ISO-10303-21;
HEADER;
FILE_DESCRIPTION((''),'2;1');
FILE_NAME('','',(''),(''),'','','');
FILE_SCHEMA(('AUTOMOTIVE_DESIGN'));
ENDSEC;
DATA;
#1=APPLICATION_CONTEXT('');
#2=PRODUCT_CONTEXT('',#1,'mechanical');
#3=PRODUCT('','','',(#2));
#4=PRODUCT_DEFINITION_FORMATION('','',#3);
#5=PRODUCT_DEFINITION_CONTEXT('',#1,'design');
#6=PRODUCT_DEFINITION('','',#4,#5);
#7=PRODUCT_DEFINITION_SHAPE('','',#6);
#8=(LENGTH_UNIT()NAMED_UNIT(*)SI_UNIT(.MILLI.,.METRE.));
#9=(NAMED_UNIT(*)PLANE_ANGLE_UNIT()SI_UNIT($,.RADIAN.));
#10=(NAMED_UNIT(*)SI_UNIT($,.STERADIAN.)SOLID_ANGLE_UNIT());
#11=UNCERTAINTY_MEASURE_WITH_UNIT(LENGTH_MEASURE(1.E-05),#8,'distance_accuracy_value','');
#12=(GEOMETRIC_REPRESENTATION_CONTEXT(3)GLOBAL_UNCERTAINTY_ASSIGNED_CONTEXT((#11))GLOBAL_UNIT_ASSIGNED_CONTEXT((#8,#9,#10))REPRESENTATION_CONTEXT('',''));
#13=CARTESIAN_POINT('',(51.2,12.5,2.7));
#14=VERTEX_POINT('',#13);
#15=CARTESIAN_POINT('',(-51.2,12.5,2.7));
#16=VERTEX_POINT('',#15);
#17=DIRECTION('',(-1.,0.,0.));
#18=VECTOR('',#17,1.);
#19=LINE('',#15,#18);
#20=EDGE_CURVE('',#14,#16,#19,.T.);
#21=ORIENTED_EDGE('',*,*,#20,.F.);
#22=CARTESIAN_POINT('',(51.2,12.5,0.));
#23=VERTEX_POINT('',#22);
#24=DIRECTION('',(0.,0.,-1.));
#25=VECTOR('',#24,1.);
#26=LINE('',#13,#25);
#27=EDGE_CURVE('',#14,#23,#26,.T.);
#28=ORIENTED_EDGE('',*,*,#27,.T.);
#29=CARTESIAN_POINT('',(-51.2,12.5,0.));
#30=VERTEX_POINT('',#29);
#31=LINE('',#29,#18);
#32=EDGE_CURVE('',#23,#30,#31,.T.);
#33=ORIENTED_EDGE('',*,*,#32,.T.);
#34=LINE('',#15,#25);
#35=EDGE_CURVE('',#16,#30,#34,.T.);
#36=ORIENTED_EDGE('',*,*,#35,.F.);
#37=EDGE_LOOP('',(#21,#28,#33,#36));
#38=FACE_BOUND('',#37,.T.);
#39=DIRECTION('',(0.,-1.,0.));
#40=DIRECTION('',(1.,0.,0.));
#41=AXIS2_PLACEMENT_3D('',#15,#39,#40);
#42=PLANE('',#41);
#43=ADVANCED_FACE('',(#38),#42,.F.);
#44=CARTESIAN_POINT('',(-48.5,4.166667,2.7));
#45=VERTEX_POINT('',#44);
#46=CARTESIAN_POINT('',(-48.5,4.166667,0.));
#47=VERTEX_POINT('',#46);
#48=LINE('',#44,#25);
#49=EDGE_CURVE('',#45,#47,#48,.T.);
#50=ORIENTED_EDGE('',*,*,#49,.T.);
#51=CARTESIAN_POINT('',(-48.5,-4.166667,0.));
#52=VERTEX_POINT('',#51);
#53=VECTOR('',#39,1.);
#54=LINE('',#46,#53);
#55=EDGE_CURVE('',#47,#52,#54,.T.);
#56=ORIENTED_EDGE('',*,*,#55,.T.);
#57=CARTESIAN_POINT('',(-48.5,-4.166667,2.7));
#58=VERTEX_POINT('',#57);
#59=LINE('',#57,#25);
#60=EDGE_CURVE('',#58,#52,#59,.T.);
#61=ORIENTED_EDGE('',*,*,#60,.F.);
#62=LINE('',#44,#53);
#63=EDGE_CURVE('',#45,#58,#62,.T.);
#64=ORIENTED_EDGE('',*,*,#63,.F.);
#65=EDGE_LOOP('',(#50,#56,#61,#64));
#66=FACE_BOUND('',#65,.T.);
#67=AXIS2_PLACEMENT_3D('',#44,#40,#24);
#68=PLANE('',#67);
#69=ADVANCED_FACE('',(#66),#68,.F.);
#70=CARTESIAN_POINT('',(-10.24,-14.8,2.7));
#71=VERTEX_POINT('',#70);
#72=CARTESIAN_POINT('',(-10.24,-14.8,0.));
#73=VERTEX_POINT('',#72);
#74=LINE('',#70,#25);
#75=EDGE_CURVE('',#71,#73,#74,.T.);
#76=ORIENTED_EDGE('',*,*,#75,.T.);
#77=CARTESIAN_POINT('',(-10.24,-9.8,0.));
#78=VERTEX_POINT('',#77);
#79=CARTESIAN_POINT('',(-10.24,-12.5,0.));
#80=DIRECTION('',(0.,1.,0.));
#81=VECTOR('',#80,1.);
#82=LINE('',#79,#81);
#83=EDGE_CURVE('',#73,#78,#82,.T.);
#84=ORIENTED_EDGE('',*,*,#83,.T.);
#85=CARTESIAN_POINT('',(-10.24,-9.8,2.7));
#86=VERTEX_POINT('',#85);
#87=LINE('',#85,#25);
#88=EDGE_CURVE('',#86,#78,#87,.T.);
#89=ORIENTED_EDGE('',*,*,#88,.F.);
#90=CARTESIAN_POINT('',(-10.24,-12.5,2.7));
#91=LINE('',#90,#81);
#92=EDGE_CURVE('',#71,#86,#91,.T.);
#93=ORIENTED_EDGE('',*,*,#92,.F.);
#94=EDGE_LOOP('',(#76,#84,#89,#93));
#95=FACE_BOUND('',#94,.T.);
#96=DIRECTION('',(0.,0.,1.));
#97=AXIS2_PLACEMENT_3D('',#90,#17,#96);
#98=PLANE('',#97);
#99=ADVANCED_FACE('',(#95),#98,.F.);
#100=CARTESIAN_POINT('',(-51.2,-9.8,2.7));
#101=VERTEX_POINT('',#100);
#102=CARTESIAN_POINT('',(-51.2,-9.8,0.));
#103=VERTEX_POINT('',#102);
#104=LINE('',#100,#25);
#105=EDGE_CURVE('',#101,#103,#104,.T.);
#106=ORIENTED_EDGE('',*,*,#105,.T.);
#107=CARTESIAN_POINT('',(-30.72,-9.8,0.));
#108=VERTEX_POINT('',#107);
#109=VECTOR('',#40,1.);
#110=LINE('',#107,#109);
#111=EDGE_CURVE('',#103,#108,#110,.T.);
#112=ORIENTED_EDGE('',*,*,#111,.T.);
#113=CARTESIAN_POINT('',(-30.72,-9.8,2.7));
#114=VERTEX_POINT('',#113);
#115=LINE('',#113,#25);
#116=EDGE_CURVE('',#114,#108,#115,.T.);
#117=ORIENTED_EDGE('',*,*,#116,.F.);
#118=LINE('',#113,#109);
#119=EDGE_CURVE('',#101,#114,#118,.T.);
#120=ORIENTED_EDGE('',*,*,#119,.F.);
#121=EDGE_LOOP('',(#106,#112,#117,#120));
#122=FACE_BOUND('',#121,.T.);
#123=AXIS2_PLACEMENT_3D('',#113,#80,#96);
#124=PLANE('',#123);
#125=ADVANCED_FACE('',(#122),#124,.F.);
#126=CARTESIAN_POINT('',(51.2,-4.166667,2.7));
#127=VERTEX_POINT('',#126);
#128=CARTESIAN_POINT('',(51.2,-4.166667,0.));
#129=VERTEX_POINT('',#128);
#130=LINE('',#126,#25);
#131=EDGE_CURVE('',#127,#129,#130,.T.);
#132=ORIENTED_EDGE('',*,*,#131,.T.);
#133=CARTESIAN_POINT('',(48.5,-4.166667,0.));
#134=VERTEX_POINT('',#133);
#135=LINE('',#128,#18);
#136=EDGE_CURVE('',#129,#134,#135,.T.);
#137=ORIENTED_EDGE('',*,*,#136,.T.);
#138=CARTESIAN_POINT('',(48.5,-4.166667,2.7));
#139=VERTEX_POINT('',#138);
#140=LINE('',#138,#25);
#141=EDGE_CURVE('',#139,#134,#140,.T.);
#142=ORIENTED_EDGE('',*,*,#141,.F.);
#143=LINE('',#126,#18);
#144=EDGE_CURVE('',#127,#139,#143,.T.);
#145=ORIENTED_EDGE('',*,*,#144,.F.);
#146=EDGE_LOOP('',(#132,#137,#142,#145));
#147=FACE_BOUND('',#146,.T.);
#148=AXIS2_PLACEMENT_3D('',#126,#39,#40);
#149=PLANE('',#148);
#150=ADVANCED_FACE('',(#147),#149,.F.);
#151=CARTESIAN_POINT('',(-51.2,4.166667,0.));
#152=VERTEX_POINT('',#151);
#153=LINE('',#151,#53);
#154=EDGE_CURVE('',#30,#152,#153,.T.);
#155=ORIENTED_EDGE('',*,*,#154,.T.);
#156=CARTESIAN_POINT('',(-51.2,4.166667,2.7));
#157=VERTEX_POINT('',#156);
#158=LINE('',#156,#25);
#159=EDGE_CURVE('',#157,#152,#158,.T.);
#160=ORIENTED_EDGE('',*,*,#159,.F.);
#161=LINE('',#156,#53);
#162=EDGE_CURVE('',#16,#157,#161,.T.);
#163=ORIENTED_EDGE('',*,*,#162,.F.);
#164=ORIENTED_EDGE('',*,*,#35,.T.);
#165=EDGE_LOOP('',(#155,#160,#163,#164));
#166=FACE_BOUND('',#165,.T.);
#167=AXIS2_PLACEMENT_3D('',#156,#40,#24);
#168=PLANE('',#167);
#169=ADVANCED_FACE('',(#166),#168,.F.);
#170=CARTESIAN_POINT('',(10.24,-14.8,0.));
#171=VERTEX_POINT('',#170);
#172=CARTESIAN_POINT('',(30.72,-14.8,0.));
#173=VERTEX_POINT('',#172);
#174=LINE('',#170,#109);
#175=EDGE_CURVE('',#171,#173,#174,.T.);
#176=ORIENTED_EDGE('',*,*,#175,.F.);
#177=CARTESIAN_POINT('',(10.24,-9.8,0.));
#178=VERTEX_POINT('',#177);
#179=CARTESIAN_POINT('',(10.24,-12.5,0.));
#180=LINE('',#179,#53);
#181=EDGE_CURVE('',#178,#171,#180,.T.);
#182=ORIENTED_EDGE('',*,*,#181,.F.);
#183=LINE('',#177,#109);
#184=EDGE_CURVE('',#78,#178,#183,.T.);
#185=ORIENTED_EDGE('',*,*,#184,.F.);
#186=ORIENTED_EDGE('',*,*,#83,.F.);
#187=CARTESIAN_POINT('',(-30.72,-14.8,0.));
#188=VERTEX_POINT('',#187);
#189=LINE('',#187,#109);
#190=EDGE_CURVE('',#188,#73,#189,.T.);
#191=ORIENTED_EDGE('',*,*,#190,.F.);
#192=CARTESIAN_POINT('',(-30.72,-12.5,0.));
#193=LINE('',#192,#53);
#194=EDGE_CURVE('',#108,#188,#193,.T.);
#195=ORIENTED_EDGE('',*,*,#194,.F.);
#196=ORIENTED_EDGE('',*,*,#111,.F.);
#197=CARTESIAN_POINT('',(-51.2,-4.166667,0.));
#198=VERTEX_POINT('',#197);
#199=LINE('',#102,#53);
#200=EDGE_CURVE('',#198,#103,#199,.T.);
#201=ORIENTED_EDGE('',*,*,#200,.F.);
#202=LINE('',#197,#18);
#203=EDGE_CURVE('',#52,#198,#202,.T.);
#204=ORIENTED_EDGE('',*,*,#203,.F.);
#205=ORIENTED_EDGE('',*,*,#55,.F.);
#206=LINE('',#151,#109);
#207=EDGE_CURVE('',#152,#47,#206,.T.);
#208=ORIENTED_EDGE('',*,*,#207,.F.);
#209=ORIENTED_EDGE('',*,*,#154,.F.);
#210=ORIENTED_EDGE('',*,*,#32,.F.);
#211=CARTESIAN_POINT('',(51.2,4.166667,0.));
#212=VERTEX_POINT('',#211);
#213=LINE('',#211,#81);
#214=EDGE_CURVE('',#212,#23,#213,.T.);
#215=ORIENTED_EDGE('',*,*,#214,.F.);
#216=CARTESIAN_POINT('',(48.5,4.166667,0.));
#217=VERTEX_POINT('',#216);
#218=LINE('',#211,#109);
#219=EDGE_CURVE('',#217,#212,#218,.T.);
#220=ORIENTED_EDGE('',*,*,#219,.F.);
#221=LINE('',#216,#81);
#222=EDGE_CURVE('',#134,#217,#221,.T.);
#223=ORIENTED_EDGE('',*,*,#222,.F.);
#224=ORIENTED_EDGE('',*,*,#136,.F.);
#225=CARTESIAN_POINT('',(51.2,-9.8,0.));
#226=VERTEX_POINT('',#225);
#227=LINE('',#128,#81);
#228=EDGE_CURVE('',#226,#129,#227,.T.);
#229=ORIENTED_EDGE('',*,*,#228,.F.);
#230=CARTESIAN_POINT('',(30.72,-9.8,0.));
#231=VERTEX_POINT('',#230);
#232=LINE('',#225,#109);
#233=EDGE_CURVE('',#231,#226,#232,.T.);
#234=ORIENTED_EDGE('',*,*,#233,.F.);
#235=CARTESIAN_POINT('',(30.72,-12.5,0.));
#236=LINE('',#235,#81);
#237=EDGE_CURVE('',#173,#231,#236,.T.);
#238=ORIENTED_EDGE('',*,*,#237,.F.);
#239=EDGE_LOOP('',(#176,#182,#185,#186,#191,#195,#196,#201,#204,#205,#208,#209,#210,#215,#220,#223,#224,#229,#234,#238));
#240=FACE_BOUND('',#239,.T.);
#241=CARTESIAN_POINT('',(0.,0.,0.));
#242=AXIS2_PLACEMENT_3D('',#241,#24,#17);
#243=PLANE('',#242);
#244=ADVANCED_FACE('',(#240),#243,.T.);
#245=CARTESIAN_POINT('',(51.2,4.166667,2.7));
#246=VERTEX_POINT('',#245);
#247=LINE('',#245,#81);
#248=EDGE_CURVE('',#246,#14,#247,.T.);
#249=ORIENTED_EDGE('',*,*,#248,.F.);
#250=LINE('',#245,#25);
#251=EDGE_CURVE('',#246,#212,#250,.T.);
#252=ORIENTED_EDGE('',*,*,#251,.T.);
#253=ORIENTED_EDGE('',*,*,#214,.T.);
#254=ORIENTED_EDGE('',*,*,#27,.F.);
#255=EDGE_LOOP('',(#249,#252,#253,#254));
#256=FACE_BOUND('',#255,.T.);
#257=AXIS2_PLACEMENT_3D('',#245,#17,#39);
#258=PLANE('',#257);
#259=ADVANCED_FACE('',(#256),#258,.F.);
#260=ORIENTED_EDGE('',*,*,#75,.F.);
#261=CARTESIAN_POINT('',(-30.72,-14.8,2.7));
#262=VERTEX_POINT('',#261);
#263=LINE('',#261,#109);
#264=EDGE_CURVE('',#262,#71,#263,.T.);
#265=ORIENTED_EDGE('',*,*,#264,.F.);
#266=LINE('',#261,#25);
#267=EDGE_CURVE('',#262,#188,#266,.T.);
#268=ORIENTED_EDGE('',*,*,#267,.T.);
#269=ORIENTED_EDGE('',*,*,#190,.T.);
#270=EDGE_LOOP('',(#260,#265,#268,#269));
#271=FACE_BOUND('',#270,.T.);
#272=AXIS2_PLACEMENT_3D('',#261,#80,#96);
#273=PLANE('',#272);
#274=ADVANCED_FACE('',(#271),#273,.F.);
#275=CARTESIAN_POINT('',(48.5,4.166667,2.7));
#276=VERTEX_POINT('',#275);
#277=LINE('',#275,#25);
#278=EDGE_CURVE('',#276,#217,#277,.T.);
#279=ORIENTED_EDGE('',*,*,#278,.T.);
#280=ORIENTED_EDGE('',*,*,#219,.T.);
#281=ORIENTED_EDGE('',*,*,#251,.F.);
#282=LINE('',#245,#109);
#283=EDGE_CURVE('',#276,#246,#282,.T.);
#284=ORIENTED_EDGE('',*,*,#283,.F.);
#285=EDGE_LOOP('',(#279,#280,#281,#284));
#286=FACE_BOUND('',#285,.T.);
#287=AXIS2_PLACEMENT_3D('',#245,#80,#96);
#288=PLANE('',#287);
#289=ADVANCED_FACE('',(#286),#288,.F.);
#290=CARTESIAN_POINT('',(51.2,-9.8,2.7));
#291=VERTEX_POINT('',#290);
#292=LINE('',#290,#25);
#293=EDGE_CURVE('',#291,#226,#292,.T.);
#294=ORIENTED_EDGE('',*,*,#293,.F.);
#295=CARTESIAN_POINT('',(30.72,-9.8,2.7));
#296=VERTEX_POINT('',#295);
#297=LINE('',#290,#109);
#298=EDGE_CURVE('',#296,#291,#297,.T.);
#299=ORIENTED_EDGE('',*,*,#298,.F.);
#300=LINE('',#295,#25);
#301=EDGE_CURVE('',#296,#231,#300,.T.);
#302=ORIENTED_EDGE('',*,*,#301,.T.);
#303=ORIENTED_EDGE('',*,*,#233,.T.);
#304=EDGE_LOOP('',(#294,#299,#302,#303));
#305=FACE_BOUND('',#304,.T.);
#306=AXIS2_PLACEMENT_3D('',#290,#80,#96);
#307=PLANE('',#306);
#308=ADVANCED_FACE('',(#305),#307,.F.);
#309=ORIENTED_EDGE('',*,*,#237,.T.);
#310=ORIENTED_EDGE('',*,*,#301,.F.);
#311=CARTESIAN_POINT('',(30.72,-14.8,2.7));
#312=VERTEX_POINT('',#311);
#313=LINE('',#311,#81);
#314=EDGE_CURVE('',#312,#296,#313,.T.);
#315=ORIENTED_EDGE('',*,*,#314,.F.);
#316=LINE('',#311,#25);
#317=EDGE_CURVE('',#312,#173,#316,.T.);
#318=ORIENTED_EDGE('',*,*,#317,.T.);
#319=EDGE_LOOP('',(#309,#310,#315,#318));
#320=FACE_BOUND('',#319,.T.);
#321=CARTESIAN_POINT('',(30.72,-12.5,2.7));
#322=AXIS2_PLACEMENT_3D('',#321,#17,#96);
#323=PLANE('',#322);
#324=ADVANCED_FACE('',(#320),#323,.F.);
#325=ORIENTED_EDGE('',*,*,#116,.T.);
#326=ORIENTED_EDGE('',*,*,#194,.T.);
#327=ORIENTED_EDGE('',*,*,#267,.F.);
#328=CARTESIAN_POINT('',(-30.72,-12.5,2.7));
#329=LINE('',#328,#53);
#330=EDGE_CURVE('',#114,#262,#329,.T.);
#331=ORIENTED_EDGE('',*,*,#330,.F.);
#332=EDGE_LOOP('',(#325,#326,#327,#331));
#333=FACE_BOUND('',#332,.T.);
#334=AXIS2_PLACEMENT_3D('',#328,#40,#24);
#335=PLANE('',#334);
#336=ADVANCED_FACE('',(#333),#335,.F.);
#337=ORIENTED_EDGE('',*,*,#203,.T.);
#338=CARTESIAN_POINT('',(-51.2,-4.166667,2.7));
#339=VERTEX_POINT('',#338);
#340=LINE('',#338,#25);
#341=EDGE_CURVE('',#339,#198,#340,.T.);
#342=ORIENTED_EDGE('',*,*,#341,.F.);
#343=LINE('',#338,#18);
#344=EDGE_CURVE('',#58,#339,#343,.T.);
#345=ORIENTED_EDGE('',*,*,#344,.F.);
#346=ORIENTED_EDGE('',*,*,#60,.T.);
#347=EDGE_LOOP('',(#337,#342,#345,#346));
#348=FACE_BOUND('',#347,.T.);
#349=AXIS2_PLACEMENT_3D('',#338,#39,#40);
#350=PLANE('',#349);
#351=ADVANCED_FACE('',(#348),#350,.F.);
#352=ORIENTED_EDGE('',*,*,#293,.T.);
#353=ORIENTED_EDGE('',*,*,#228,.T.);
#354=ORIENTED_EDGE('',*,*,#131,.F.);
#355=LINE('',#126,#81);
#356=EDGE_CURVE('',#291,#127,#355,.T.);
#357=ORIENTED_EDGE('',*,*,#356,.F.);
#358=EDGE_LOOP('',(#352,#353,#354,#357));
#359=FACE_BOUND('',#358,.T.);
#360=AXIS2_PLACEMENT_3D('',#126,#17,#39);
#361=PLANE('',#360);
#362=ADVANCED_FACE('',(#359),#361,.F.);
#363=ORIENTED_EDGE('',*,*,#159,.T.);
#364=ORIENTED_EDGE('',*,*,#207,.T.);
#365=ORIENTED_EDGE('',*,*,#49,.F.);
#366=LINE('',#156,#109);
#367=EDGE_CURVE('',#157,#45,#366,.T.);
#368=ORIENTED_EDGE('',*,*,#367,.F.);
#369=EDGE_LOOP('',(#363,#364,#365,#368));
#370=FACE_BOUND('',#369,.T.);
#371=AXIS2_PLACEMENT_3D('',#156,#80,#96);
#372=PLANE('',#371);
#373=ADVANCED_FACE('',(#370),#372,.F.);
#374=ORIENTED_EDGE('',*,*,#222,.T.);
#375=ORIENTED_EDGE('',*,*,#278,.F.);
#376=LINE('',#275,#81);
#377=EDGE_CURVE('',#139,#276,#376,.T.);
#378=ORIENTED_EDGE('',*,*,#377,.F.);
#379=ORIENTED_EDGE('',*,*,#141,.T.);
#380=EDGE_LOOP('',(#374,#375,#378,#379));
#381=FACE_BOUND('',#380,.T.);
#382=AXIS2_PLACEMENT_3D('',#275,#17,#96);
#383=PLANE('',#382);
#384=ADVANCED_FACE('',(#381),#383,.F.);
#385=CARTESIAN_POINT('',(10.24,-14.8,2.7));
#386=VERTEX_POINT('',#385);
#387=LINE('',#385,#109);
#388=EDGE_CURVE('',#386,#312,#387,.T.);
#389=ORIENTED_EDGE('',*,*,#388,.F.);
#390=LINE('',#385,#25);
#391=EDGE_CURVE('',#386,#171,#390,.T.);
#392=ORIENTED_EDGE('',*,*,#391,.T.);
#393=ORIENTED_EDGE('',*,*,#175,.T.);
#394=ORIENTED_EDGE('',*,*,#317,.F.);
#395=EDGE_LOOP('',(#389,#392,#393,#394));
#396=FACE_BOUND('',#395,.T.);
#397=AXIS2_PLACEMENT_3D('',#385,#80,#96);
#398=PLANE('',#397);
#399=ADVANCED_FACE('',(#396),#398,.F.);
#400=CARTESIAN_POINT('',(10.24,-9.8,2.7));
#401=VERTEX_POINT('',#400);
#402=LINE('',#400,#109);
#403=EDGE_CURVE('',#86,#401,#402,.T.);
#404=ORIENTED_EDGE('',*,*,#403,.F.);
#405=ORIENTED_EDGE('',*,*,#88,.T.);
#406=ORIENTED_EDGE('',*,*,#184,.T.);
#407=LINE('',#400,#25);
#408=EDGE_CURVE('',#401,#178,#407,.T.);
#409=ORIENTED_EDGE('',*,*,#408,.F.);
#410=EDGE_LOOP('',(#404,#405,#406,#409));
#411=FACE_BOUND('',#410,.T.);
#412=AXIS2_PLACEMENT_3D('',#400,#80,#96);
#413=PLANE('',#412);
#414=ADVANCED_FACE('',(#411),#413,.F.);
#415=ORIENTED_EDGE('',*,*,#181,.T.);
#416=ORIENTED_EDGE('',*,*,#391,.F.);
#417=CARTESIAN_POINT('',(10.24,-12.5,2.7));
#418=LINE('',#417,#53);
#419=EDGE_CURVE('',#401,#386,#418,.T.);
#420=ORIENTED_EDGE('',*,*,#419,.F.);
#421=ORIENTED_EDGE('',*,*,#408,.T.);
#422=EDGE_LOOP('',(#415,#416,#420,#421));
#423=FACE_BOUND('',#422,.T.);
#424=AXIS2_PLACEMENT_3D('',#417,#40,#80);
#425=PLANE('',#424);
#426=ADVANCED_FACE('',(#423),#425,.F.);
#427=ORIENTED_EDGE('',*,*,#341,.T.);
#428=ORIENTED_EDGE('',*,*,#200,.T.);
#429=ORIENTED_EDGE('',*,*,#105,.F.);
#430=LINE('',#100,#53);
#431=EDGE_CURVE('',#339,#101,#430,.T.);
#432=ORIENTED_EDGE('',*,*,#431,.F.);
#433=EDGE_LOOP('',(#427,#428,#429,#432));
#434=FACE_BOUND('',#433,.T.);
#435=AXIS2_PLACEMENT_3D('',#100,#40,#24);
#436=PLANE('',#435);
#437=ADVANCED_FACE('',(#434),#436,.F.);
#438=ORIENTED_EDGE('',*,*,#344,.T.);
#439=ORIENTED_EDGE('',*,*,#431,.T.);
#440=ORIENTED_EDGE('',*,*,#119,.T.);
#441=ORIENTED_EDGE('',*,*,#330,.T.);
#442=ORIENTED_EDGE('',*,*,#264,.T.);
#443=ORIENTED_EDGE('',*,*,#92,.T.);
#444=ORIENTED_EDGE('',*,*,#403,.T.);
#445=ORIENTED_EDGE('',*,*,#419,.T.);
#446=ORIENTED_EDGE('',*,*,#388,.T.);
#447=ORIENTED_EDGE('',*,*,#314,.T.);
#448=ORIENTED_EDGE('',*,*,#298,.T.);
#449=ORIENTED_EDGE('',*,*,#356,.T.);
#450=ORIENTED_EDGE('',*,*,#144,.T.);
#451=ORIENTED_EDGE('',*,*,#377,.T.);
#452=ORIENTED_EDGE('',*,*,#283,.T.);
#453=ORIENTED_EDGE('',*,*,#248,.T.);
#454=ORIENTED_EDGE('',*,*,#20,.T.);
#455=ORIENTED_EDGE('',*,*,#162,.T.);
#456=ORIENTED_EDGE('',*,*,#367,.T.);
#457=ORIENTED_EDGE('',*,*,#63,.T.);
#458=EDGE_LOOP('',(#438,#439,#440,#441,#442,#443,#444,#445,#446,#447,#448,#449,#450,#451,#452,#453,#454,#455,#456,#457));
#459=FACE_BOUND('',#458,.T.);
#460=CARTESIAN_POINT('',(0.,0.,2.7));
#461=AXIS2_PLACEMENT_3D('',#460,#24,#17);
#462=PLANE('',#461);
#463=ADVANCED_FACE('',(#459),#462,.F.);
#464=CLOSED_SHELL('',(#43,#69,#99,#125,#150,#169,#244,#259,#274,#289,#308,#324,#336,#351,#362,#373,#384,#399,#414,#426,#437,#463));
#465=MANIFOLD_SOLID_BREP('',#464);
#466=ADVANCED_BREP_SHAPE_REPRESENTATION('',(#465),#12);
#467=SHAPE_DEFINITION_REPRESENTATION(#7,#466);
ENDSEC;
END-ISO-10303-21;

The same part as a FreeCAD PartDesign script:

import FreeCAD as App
import Part
import Sketcher
Q = App.Units.Quantity


def add_polygon(sketch, points):
    """Adds a closed chain of lines whose ends are joined by coincident constraints."""
    first, n = sketch.GeometryCount, len(points)
    for a, b in zip(points, points[1:] + points[:1]):
        sketch.addGeometry(Part.LineSegment(App.Vector(*a, 0), App.Vector(*b, 0)), False)
    for i in range(n):
        sketch.addConstraint(Sketcher.Constraint("Coincident", first + i, 2, first + (i + 1) % n, 1))

doc = App.newDocument("Part")
body = doc.addObject("PartDesign::Body", "Body")

sketch1 = doc.addObject("Sketcher::SketchObject", "Sketch")
body.addObject(sketch1)
sketch1.AttachmentSupport = (doc.XY_Plane, [""])
sketch1.MapMode = "FlatFace"
add_polygon(sketch1, [(-51.2, -4.2), (-51.2, -9.8), (-30.7, -9.8), (-30.7, -14.8), (-10.2, -14.8), (-10.2, -9.8), (10.2, -9.8), (10.2, -14.8), (30.7, -14.8), (30.7, -9.8), (51.2, -9.8), (51.2, -4.2), (48.5, -4.2), (48.5, 4.2), (51.2, 4.2), (51.2, 12.5), (-51.2, 12.5), (-51.2, 4.2), (-48.5, 4.2), (-48.5, -4.2)])
sketch1.addConstraint(Sketcher.Constraint("Vertical", 0))
sketch1.addConstraint(Sketcher.Constraint("Horizontal", 1))
sketch1.addConstraint(Sketcher.Constraint("Vertical", 2))
sketch1.addConstraint(Sketcher.Constraint("Horizontal", 3))
sketch1.addConstraint(Sketcher.Constraint("Vertical", 4))
sketch1.addConstraint(Sketcher.Constraint("Horizontal", 5))
sketch1.addConstraint(Sketcher.Constraint("Vertical", 6))
sketch1.addConstraint(Sketcher.Constraint("Horizontal", 7))
sketch1.addConstraint(Sketcher.Constraint("Vertical", 8))
sketch1.addConstraint(Sketcher.Constraint("Horizontal", 9))
sketch1.addConstraint(Sketcher.Constraint("Vertical", 10))
sketch1.addConstraint(Sketcher.Constraint("Horizontal", 11))
sketch1.addConstraint(Sketcher.Constraint("Vertical", 12))
sketch1.addConstraint(Sketcher.Constraint("Horizontal", 13))
sketch1.addConstraint(Sketcher.Constraint("Vertical", 14))
sketch1.addConstraint(Sketcher.Constraint("Horizontal", 15))
sketch1.addConstraint(Sketcher.Constraint("Vertical", 16))
sketch1.addConstraint(Sketcher.Constraint("Horizontal", 17))
sketch1.addConstraint(Sketcher.Constraint("Vertical", 18))
sketch1.addConstraint(Sketcher.Constraint("Horizontal", 19))
sketch1.addConstraint(Sketcher.Constraint("Symmetric", 10, 2, 16, 2, -1, 1))
sketch1.addConstraint(Sketcher.Constraint("Symmetric", 12, 2, 18, 2, -1, 1))
sketch1.addConstraint(Sketcher.Constraint("Symmetric", 3, 2, 6, 2, -2))
sketch1.addConstraint(Sketcher.Constraint("Symmetric", 1, 2, 8, 2, -2))
sketch1.addConstraint(Sketcher.Constraint("Symmetric", 13, 2, 16, 2, -2))
sketch1.addConstraint(Sketcher.Constraint("Horizontal", 1, 2, 4, 2))
sketch1.addConstraint(Sketcher.Constraint("Vertical", 0, 2, 15, 2))
sketch1.addConstraint(Sketcher.Constraint("Equal", 1, 3))
sketch1.addConstraint(Sketcher.Constraint("Equal", 3, 5))
sketch1.addConstraint(Sketcher.Constraint("Equal", 12, 14))
sketch1.addConstraint(Sketcher.Constraint("DistanceY", 2, 2, 2, 1, Q("5 mm")))
sketch1.addConstraint(Sketcher.Constraint("DistanceX", 11, 2, 11, 1, Q("2.7 mm")))
sketch1.addConstraint(Sketcher.Constraint("DistanceX", 15, 2, 15, 1, Q("102.4 mm")))
sketch1.addConstraint(Sketcher.Constraint("DistanceY", 0, 2, -1, 1, Q("9.8 mm")))
sketch1.addConstraint(Sketcher.Constraint("DistanceY", -1, 1, 14, 2, Q("12.5 mm")))
pad1 = doc.addObject("PartDesign::Pad", "Pad")
body.addObject(pad1)
pad1.Profile = sketch1
pad1.Length = 2.7

doc.recompute()
